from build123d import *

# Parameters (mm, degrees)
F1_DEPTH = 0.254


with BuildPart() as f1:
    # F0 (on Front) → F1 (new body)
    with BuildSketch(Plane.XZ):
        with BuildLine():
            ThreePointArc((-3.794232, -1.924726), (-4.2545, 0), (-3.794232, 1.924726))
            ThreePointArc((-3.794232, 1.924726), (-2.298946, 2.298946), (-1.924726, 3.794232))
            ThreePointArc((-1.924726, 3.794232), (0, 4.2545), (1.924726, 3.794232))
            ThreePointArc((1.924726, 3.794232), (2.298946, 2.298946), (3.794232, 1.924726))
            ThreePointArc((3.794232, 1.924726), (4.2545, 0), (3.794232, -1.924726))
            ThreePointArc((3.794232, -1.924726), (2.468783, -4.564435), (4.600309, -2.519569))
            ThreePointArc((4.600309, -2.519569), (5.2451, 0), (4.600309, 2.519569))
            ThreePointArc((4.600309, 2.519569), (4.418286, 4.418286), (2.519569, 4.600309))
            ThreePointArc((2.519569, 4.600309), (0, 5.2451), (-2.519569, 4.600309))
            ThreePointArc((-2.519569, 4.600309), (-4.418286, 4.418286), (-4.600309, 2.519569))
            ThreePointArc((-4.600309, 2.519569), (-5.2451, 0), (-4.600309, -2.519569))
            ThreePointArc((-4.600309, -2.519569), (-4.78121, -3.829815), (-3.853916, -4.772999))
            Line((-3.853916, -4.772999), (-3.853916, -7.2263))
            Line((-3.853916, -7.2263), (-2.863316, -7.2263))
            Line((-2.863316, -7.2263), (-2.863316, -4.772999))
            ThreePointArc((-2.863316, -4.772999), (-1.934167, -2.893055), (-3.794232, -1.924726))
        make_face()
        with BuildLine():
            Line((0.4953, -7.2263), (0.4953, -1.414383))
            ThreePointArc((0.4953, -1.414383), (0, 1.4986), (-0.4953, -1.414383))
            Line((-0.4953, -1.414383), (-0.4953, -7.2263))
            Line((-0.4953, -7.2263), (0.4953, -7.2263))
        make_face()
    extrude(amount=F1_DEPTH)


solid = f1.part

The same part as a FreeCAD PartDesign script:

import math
import FreeCAD as App
import Part
import Sketcher
Q = App.Units.Quantity

doc = App.newDocument("Part")
body = doc.addObject("PartDesign::Body", "Body")
body.AllowCompound = True

sketch1 = body.newObject("Sketcher::SketchObject", "Sketch")
sketch1.AttachmentSupport = (doc.getObject("XZ_Plane"), [""])
sketch1.MapMode = "FlatFace"
sketch1.addGeometry([
    Part.ArcOfCircle(Part.Circle(App.Vector(0, 0, 0), App.Vector(0, 0, 1), 4.3), math.radians(153), math.radians(207)),
    Part.ArcOfCircle(Part.Circle(App.Vector(-3.4, 3.4, 0), App.Vector(0, 0, 1), 1.5), math.radians(-107), math.radians(17)),
    Part.ArcOfCircle(Part.Circle(App.Vector(0, 0, 0), App.Vector(0, 0, 1), 4.3), math.radians(63), math.radians(117)),
    Part.ArcOfCircle(Part.Circle(App.Vector(3.4, 3.4, 0), App.Vector(0, 0, 1), 1.5), math.radians(163), math.radians(287)),
    Part.ArcOfCircle(Part.Circle(App.Vector(0, 0, 0), App.Vector(0, 0, 1), 4.3), math.radians(-27), math.radians(27)),
    Part.ArcOfCircle(Part.Circle(App.Vector(3.4, -3.4, 0), App.Vector(0, 0, 1), 1.5), math.radians(73), math.radians(394)),
    Part.ArcOfCircle(Part.Circle(App.Vector(0, 0, 0), App.Vector(0, 0, 1), 5.2), math.radians(-29), math.radians(29)),
    Part.ArcOfCircle(Part.Circle(App.Vector(3.4, 3.4, 0), App.Vector(0, 0, 1), 1.5), math.radians(-34), math.radians(124)),
    Part.ArcOfCircle(Part.Circle(App.Vector(0, 0, 0), App.Vector(0, 0, 1), 5.2), math.radians(61), math.radians(119)),
    Part.ArcOfCircle(Part.Circle(App.Vector(-3.4, 3.4, 0), App.Vector(0, 0, 1), 1.5), math.radians(56), math.radians(214)),
    Part.ArcOfCircle(Part.Circle(App.Vector(0, 0, 0), App.Vector(0, 0, 1), 5.2), math.radians(151), math.radians(209)),
    Part.ArcOfCircle(Part.Circle(App.Vector(-3.4, -3.4, 0), App.Vector(0, 0, 1), 1.5), math.radians(146), math.radians(251)),
    Part.LineSegment(App.Vector(-3.9, -4.8, 0), App.Vector(-3.9, -7.2, 0)),
    Part.LineSegment(App.Vector(-3.9, -7.2, 0), App.Vector(-2.9, -7.2, 0)),
    Part.LineSegment(App.Vector(-2.9, -7.2, 0), App.Vector(-2.9, -4.8, 0)),
    Part.ArcOfCircle(Part.Circle(App.Vector(-3.4, -3.4, 0), App.Vector(0, 0, 1), 1.5), math.radians(-71), math.radians(107)),
    Part.LineSegment(App.Vector(0.5, -7.2, 0), App.Vector(0.5, -1.4, 0)),
    Part.ArcOfCircle(Part.Circle(App.Vector(0, 0, 0), App.Vector(0, 0, 1), 1.5), math.radians(-71), math.radians(251)),
    Part.LineSegment(App.Vector(-0.5, -1.4, 0), App.Vector(-0.5, -7.2, 0)),
    Part.LineSegment(App.Vector(-0.5, -7.2, 0), App.Vector(0.5, -7.2, 0)),
], False)
sketch1.addConstraint([
    Sketcher.Constraint("Coincident", 0, 1, 1, 1),
    Sketcher.Constraint("Coincident", 1, 2, 2, 2),
    Sketcher.Constraint("Coincident", 2, 1, 3, 1),
    Sketcher.Constraint("Coincident", 3, 2, 4, 2),
    Sketcher.Constraint("Coincident", 4, 1, 5, 1),
    Sketcher.Constraint("Coincident", 5, 2, 6, 1),
    Sketcher.Constraint("Coincident", 6, 2, 7, 1),
    Sketcher.Constraint("Coincident", 7, 2, 8, 1),
    Sketcher.Constraint("Coincident", 8, 2, 9, 1),
    Sketcher.Constraint("Coincident", 9, 2, 10, 1),
    Sketcher.Constraint("Coincident", 10, 2, 11, 1),
    Sketcher.Constraint("Coincident", 11, 2, 12, 1),
    Sketcher.Constraint("Coincident", 12, 2, 13, 1),
    Sketcher.Constraint("Coincident", 13, 2, 14, 1),
    Sketcher.Constraint("Coincident", 14, 2, 15, 1),
    Sketcher.Constraint("Coincident", 15, 2, 0, 2),
    Sketcher.Constraint("Coincident", 16, 2, 17, 1),
    Sketcher.Constraint("Coincident", 17, 2, 18, 1),
    Sketcher.Constraint("Coincident", 18, 2, 19, 1),
    Sketcher.Constraint("Coincident", 19, 2, 16, 1),
    Sketcher.Constraint("Vertical", 12),
    Sketcher.Constraint("Horizontal", 13),
    Sketcher.Constraint("Vertical", 14),
    Sketcher.Constraint("Vertical", 16),
    Sketcher.Constraint("Vertical", 18),
    Sketcher.Constraint("Horizontal", 19),
    Sketcher.Constraint("Coincident", 0, 3, -1, 1),
    Sketcher.Constraint("Coincident", 2, 3, -1, 1),
    Sketcher.Constraint("Coincident", 4, 3, -1, 1),
    Sketcher.Constraint("Coincident", 6, 3, -1, 1),
    Sketcher.Constraint("Coincident", 8, 3, -1, 1),
    Sketcher.Constraint("Coincident", 10, 3, -1, 1),
    Sketcher.Constraint("Coincident", 17, 3, -1, 1),
    Sketcher.Constraint("Coincident", 7, 3, 3, 3),
    Sketcher.Constraint("Coincident", 9, 3, 1, 3),
    Sketcher.Constraint("Coincident", 15, 3, 11, 3),
    Sketcher.Constraint("Equal", 0, 2),
    Sketcher.Constraint("Equal", 1, 3),
    Sketcher.Constraint("Equal", 2, 4),
    Sketcher.Constraint("Equal", 3, 5),
    Sketcher.Constraint("Equal", 5, 7),
    Sketcher.Constraint("Equal", 6, 8),
    Sketcher.Constraint("Equal", 7, 9),
    Sketcher.Constraint("Equal", 8, 10),
    Sketcher.Constraint("Equal", 9, 11),
    Sketcher.Constraint("Equal", 11, 15),
    Sketcher.Constraint("Equal", 15, 17),
    Sketcher.Constraint("Symmetric", 1, 3, 5, 3, -1, 1),
    Sketcher.Constraint("Symmetric", 3, 3, 11, 3, -1, 1),
    Sketcher.Constraint("Symmetric", 1, 3, 3, 3, -2),
    Sketcher.Constraint("Horizontal", 11, 2, 14, 2),
    Sketcher.Constraint("Horizontal", 16, 2, 17, 2),
    Sketcher.Constraint("Horizontal", 13, 2, 18, 2),
    Sketcher.Constraint("Equal", 13, 19),
    Sketcher.Constraint("Radius", 1, Q("0.059 in")),
    Sketcher.Constraint("Radius", 0, Q("0.1674998 in")),
    Sketcher.Constraint("Radius", 6, Q("0.2064999 in")),
    Sketcher.Constraint("DistanceX", 13, 1, 13, 2, Q("0.039 in")),
    Sketcher.Constraint("DistanceY", 12, 2, 12, 1, Q("2.453301 mm")),
    Sketcher.Constraint("DistanceY", 12, 2, -1, 1, Q("0.2845 in")),
    Sketcher.Constraint("DistanceX", -1, 1, 5, 2, Q("4.600309 mm")),
])
pad1 = body.newObject("PartDesign::Pad", "Pad")
pad1.Profile = sketch1
pad1.Length = Q("0.01 in")

doc.recompute()
